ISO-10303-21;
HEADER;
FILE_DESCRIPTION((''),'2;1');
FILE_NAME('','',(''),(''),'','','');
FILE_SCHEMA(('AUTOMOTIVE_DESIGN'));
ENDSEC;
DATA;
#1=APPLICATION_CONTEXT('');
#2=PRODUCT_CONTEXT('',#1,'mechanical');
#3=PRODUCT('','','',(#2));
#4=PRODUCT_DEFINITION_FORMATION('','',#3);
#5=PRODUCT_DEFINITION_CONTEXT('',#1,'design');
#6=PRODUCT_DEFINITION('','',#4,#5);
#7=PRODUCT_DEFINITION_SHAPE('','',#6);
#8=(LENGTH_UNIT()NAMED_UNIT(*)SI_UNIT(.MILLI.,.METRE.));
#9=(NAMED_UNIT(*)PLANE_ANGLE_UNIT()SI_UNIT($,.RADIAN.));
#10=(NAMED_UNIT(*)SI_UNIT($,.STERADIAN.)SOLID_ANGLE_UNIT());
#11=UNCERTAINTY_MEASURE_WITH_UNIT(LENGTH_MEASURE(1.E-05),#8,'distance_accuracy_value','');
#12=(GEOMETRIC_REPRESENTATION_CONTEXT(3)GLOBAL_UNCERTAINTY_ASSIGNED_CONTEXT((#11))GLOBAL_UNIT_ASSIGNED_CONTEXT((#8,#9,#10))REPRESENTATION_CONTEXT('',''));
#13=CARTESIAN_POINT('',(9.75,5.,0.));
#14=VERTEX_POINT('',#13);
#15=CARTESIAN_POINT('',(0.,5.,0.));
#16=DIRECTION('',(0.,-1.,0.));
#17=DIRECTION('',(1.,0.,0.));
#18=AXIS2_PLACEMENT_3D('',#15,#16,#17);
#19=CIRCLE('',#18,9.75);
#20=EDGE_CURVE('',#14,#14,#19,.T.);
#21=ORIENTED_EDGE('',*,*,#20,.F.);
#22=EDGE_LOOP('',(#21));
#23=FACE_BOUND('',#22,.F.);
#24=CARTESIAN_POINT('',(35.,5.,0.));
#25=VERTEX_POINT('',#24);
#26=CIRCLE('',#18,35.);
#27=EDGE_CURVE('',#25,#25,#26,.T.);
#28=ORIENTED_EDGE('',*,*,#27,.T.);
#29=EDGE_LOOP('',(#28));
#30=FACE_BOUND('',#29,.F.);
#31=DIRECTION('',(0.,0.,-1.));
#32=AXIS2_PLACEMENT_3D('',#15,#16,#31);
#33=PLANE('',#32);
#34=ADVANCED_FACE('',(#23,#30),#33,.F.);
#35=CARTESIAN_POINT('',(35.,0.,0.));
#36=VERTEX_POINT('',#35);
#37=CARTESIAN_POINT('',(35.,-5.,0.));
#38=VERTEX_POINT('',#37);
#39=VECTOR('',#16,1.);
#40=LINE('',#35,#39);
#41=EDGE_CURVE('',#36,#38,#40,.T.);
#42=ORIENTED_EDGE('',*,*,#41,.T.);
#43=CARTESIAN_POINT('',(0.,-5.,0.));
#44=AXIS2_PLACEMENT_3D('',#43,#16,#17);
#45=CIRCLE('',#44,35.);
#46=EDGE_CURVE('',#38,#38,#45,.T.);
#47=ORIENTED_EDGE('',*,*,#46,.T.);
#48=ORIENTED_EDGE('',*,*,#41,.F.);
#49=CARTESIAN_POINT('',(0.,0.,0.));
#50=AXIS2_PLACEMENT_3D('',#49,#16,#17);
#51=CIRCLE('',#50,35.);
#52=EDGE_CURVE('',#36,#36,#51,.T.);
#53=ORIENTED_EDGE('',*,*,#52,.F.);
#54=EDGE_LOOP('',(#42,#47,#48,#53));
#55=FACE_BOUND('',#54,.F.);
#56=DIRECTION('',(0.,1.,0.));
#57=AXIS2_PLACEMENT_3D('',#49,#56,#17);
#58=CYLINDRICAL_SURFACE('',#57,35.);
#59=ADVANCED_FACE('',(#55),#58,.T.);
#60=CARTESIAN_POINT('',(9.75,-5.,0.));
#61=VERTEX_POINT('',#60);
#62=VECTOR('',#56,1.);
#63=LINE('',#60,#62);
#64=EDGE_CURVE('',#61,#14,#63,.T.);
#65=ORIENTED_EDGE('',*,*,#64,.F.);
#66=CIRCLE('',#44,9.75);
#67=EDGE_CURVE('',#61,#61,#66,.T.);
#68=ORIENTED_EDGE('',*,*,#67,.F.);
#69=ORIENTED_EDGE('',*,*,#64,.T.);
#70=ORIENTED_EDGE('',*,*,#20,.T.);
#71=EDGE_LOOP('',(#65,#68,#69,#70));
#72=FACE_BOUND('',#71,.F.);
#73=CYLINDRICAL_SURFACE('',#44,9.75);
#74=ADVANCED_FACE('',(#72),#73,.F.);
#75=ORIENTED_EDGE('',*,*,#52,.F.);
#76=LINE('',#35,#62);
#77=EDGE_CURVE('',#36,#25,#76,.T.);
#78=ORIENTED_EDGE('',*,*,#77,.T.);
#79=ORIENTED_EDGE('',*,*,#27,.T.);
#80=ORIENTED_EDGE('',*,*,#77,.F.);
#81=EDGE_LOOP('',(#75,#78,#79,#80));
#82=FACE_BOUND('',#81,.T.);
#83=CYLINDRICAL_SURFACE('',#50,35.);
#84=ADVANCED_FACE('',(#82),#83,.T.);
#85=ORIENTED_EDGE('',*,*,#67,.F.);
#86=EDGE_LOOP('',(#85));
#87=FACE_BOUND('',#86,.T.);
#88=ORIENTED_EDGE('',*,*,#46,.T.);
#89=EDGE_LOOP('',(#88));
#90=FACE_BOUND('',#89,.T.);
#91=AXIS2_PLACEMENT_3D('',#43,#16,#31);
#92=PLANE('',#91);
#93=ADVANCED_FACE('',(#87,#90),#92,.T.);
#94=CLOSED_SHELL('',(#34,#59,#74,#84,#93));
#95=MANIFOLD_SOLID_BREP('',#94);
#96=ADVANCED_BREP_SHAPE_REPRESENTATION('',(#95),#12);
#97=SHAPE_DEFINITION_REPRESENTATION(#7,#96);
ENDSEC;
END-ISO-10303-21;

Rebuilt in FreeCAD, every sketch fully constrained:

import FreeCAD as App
import Part
import Sketcher
from FreeCAD import Vector
Q = App.Units.Quantity

doc = App.newDocument("Part")
body = doc.addObject("PartDesign::Body", "Body")

# Sketch on XZ plane
sketch1 = body.newObject("Sketcher::SketchObject", "Sketch")
sketch1.AttachmentSupport = (doc.getObject("XZ_Plane"), [""])
sketch1.MapMode = "FlatFace"
sketch1.addGeometry(Part.Circle(Vector(0, 0, 0), Vector(0, 0, 1), 35), False)
sketch1.addConstraint(Sketcher.Constraint("Coincident", 0, 3, -1, 1))
sketch1.addConstraint(Sketcher.Constraint("Diameter", 0, Q("70 mm")))
pad1 = body.newObject("PartDesign::Pad", "Pad")
pad1.Profile = sketch1
pad1.Length = 10
pad1.Midplane = True

# Sketch on XZ plane
sketch2 = body.newObject("Sketcher::SketchObject", "Sketch001")
sketch2.AttachmentSupport = (doc.getObject("XZ_Plane"), [""])
sketch2.MapMode = "FlatFace"
sketch2.AttachmentOffset = App.Placement(Vector(0, 0, 5), App.Rotation())
sketch2.addGeometry(Part.Circle(Vector(0, 0, 0), Vector(0, 0, 1), 10), False)
sketch2.addConstraint(Sketcher.Constraint("Coincident", 0, 3, -1, 1))
sketch2.addConstraint(Sketcher.Constraint("Diameter", 0, Q("19.5 mm")))
pocket1 = body.newObject("PartDesign::Pocket", "Pocket")
pocket1.Profile = sketch2
pocket1.Length = 75.4836

doc.recompute()
